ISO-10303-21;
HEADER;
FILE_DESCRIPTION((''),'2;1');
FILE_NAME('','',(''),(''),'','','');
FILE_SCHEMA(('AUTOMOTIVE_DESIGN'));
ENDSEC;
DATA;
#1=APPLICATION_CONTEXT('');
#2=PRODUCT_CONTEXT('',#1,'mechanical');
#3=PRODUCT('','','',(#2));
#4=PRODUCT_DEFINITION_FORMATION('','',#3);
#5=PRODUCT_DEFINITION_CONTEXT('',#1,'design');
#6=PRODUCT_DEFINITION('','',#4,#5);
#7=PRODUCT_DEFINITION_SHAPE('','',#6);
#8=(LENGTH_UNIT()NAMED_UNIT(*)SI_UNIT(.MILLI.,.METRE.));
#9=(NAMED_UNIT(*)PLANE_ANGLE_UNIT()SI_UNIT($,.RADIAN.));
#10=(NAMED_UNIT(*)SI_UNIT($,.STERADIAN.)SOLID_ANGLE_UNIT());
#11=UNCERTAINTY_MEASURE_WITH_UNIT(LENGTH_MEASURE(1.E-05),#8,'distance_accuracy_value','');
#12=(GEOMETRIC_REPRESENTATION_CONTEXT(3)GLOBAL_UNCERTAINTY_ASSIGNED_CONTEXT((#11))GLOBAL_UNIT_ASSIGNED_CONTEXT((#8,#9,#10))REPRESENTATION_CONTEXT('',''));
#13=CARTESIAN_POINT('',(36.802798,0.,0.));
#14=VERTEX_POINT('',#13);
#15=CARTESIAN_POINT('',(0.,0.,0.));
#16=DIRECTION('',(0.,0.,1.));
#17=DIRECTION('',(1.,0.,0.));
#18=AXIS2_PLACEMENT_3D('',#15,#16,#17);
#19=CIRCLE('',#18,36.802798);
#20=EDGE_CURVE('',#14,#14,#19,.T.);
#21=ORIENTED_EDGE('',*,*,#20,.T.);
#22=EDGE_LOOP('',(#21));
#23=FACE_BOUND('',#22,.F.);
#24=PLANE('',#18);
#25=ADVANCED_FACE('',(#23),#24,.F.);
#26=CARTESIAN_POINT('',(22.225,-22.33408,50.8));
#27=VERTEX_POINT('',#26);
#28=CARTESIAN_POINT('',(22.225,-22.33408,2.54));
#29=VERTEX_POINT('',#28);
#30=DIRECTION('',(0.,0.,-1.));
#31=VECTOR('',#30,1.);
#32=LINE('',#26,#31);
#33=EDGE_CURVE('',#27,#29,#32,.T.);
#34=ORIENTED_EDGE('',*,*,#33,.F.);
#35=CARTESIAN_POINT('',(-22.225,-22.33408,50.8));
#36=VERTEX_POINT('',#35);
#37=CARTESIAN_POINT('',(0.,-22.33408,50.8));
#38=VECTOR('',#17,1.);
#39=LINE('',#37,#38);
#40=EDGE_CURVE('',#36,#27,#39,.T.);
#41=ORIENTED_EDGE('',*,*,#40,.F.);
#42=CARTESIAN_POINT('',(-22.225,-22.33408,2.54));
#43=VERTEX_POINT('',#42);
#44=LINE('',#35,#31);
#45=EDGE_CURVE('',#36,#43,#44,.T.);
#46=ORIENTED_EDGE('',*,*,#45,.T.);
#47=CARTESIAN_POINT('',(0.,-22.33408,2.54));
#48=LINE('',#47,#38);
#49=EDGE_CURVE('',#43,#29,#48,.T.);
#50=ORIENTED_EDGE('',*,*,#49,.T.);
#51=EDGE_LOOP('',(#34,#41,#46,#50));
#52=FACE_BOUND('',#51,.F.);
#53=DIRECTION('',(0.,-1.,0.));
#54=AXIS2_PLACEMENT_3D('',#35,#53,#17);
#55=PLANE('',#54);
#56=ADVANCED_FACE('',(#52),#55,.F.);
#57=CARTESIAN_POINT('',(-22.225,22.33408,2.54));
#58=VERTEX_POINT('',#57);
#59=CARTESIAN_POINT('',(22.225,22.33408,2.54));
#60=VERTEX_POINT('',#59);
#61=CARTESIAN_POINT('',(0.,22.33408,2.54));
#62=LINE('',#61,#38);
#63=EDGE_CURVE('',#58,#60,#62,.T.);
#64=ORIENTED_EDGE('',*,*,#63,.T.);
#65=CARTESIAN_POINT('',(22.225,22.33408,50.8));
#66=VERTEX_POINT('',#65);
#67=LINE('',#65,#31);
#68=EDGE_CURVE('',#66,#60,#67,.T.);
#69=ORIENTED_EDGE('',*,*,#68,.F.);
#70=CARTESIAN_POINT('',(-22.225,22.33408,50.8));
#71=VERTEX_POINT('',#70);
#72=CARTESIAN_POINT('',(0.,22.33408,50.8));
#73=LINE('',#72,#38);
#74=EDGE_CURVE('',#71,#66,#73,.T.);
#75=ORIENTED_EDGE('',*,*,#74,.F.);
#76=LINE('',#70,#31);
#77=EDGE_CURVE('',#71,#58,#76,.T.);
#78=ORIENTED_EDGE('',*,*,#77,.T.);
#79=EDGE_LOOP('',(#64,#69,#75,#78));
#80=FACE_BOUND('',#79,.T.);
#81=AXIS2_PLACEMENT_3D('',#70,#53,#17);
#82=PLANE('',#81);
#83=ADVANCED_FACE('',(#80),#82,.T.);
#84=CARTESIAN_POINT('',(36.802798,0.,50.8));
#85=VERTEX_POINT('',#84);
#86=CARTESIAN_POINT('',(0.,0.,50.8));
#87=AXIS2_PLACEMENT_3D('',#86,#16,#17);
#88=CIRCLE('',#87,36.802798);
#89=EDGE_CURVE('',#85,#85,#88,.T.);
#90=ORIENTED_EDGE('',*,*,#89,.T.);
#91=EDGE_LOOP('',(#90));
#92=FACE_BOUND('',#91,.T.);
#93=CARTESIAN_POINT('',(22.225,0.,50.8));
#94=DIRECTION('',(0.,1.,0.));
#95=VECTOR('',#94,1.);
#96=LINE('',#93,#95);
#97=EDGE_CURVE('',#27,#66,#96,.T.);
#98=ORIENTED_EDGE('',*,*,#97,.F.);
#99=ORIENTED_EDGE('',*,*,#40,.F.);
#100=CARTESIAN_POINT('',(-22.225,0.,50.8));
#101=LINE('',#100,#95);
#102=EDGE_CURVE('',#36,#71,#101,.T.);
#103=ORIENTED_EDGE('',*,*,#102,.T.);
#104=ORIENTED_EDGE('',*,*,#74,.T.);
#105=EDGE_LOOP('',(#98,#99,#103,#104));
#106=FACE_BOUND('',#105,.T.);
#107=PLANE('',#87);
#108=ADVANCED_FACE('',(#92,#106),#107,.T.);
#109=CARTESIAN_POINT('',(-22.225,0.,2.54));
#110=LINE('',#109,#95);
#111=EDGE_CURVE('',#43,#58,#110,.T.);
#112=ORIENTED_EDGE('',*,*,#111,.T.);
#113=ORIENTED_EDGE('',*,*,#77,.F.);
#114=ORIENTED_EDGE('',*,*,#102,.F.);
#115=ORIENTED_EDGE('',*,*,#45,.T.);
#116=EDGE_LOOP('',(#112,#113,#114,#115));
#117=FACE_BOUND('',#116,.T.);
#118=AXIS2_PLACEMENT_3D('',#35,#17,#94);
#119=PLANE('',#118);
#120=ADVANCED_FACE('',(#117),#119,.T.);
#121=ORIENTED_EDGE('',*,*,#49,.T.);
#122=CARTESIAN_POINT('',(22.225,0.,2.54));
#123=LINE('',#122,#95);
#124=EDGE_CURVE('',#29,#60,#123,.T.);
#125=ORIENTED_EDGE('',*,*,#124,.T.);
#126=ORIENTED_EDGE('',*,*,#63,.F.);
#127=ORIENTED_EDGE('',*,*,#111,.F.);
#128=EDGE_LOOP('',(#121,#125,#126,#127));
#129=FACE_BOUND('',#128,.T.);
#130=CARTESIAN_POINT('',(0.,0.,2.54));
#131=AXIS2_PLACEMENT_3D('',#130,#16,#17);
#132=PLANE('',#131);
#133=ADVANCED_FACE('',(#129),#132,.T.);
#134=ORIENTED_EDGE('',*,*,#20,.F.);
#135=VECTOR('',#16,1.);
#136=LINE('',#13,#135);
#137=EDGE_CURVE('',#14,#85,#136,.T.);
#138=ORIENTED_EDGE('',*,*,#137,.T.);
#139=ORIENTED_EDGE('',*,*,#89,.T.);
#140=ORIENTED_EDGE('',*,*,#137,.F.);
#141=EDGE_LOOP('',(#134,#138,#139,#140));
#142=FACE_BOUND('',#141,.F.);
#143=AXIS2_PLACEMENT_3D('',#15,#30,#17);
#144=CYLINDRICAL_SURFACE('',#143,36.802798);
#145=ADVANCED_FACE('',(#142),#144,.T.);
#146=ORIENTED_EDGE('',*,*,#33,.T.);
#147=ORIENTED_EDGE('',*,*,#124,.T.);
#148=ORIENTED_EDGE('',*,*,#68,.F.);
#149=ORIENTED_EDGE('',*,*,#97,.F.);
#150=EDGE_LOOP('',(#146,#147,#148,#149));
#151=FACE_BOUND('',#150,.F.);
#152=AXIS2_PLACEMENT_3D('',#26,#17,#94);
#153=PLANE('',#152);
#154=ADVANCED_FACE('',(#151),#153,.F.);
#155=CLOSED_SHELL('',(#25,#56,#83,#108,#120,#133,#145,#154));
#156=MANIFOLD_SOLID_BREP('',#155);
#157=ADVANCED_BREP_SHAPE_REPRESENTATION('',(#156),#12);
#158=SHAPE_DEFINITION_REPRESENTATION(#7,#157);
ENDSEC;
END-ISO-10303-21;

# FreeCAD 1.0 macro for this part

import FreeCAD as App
import Part
import Sketcher
from FreeCAD import Vector
Q = App.Units.Quantity

doc = App.newDocument("Part")
body = doc.addObject("PartDesign::Body", "Body")

sketch1 = doc.addObject("Sketcher::SketchObject", "Sketch")
body.addObject(sketch1)
sketch1.AttachmentSupport = (doc.XY_Plane, [""])
sketch1.MapMode = "FlatFace"
sketch1.addGeometry(Part.LineSegment(Vector(-25, 25, 0), Vector(-25, -25, 0)), False)
sketch1.addGeometry(Part.LineSegment(Vector(-25, -25, 0), Vector(25, -25, 0)), False)
sketch1.addGeometry(Part.LineSegment(Vector(25, -25, 0), Vector(25, 25, 0)), False)
sketch1.addGeometry(Part.LineSegment(Vector(25, 25, 0), Vector(-25, 25, 0)), False)
sketch1.addConstraint(Sketcher.Constraint("Coincident", 0, 2, 1, 1))
sketch1.addConstraint(Sketcher.Constraint("Coincident", 1, 2, 2, 1))
sketch1.addConstraint(Sketcher.Constraint("Coincident", 2, 2, 3, 1))
sketch1.addConstraint(Sketcher.Constraint("Coincident", 3, 2, 0, 1))
sketch1.addConstraint(Sketcher.Constraint("Vertical", 0))
sketch1.addConstraint(Sketcher.Constraint("Horizontal", 1))
sketch1.addConstraint(Sketcher.Constraint("Vertical", 2))
sketch1.addConstraint(Sketcher.Constraint("Horizontal", 3))
sketch1.addConstraint(Sketcher.Constraint("Symmetric", 0, 2, 2, 2, -1, 1))
sketch1.addConstraint(Sketcher.Constraint("Equal", 3, 0))
sketch1.addConstraint(Sketcher.Constraint("DistanceX", 1, 1, 1, 2, Q("2 in")))
pad1 = doc.addObject("PartDesign::Pad", "Pad")
body.addObject(pad1)
pad1.Profile = sketch1
pad1.Length = Q("2 in")

sketch2 = doc.addObject("Sketcher::SketchObject", "Sketch001")
body.addObject(sketch2)
sketch2.AttachmentSupport = (doc.XY_Plane, [""])
sketch2.MapMode = "FlatFace"
sketch2.AttachmentOffset = App.Placement(Vector(0, 0, 2 * 25.4), App.Rotation())
sketch2.addGeometry(Part.LineSegment(Vector(-22, 22, 0), Vector(-22, -22, 0)), False)
sketch2.addGeometry(Part.LineSegment(Vector(-22, -22, 0), Vector(22, -22, 0)), False)
sketch2.addGeometry(Part.LineSegment(Vector(22, -22, 0), Vector(22, 22, 0)), False)
sketch2.addGeometry(Part.LineSegment(Vector(22, 22, 0), Vector(-22, 22, 0)), False)
sketch2.addConstraint(Sketcher.Constraint("Coincident", 0, 2, 1, 1))
sketch2.addConstraint(Sketcher.Constraint("Coincident", 1, 2, 2, 1))
sketch2.addConstraint(Sketcher.Constraint("Coincident", 2, 2, 3, 1))
sketch2.addConstraint(Sketcher.Constraint("Coincident", 3, 2, 0, 1))
sketch2.addConstraint(Sketcher.Constraint("Vertical", 0))
sketch2.addConstraint(Sketcher.Constraint("Horizontal", 1))
sketch2.addConstraint(Sketcher.Constraint("Vertical", 2))
sketch2.addConstraint(Sketcher.Constraint("Horizontal", 3))
sketch2.addConstraint(Sketcher.Constraint("Symmetric", 0, 2, 2, 2, -1, 1))
sketch2.addConstraint(Sketcher.Constraint("DistanceX", 1, 1, 1, 2, Q("1.75 in")))
sketch2.addConstraint(Sketcher.Constraint("DistanceY", 0, 2, 0, 1, Q("44.66816 mm")))
pocket1 = doc.addObject("PartDesign::Pocket", "Pocket")
body.addObject(pocket1)
pocket1.Profile = sketch2
pocket1.Length = Q("1.9 in")

sketch3 = doc.addObject("Sketcher::SketchObject", "Sketch002")
body.addObject(sketch3)
sketch3.AttachmentSupport = (doc.XY_Plane, [""])
sketch3.MapMode = "FlatFace"
sketch3.addGeometry(Part.Circle(Vector(0, 0, 0), Vector(0, 0, 1), 37), False)
sketch3.addConstraint(Sketcher.Constraint("Coincident", 0, 3, -1, 1))
sketch3.addConstraint(Sketcher.Constraint("Diameter", 0, Q("73.605596 mm")))
pad2 = doc.addObject("PartDesign::Pad", "Pad001")
body.addObject(pad2)
pad2.Profile = sketch3
pad2.Length = Q("2 in")

sketch4 = doc.addObject("Sketcher::SketchObject", "Sketch003")
body.addObject(sketch4)
sketch4.AttachmentSupport = (doc.XY_Plane, [""])
sketch4.MapMode = "FlatFace"
sketch4.AttachmentOffset = App.Placement(Vector(0, 0, 2 * 25.4), App.Rotation())
sketch4.addGeometry(Part.LineSegment(Vector(-22, 22, 0), Vector(-22, -22, 0)), False)
sketch4.addGeometry(Part.LineSegment(Vector(-22, -22, 0), Vector(22, -22, 0)), False)
sketch4.addGeometry(Part.LineSegment(Vector(22, -22, 0), Vector(22, 22, 0)), False)
sketch4.addGeometry(Part.LineSegment(Vector(22, 22, 0), Vector(-22, 22, 0)), False)
sketch4.addConstraint(Sketcher.Constraint("Coincident", 0, 2, 1, 1))
sketch4.addConstraint(Sketcher.Constraint("Coincident", 1, 2, 2, 1))
sketch4.addConstraint(Sketcher.Constraint("Coincident", 2, 2, 3, 1))
sketch4.addConstraint(Sketcher.Constraint("Coincident", 3, 2, 0, 1))
sketch4.addConstraint(Sketcher.Constraint("Vertical", 0))
sketch4.addConstraint(Sketcher.Constraint("Horizontal", 1))
sketch4.addConstraint(Sketcher.Constraint("Vertical", 2))
sketch4.addConstraint(Sketcher.Constraint("Horizontal", 3))
sketch4.addConstraint(Sketcher.Constraint("Symmetric", 0, 2, 2, 2, -1, 1))
sketch4.addConstraint(Sketcher.Constraint("DistanceX", 1, 1, 1, 2, Q("1.75 in")))
sketch4.addConstraint(Sketcher.Constraint("DistanceY", 0, 2, 0, 1, Q("44.66816 mm")))
pocket2 = doc.addObject("PartDesign::Pocket", "Pocket001")
body.addObject(pocket2)
pocket2.Profile = sketch4
pocket2.Length = Q("1.9 in")

doc.recompute()
